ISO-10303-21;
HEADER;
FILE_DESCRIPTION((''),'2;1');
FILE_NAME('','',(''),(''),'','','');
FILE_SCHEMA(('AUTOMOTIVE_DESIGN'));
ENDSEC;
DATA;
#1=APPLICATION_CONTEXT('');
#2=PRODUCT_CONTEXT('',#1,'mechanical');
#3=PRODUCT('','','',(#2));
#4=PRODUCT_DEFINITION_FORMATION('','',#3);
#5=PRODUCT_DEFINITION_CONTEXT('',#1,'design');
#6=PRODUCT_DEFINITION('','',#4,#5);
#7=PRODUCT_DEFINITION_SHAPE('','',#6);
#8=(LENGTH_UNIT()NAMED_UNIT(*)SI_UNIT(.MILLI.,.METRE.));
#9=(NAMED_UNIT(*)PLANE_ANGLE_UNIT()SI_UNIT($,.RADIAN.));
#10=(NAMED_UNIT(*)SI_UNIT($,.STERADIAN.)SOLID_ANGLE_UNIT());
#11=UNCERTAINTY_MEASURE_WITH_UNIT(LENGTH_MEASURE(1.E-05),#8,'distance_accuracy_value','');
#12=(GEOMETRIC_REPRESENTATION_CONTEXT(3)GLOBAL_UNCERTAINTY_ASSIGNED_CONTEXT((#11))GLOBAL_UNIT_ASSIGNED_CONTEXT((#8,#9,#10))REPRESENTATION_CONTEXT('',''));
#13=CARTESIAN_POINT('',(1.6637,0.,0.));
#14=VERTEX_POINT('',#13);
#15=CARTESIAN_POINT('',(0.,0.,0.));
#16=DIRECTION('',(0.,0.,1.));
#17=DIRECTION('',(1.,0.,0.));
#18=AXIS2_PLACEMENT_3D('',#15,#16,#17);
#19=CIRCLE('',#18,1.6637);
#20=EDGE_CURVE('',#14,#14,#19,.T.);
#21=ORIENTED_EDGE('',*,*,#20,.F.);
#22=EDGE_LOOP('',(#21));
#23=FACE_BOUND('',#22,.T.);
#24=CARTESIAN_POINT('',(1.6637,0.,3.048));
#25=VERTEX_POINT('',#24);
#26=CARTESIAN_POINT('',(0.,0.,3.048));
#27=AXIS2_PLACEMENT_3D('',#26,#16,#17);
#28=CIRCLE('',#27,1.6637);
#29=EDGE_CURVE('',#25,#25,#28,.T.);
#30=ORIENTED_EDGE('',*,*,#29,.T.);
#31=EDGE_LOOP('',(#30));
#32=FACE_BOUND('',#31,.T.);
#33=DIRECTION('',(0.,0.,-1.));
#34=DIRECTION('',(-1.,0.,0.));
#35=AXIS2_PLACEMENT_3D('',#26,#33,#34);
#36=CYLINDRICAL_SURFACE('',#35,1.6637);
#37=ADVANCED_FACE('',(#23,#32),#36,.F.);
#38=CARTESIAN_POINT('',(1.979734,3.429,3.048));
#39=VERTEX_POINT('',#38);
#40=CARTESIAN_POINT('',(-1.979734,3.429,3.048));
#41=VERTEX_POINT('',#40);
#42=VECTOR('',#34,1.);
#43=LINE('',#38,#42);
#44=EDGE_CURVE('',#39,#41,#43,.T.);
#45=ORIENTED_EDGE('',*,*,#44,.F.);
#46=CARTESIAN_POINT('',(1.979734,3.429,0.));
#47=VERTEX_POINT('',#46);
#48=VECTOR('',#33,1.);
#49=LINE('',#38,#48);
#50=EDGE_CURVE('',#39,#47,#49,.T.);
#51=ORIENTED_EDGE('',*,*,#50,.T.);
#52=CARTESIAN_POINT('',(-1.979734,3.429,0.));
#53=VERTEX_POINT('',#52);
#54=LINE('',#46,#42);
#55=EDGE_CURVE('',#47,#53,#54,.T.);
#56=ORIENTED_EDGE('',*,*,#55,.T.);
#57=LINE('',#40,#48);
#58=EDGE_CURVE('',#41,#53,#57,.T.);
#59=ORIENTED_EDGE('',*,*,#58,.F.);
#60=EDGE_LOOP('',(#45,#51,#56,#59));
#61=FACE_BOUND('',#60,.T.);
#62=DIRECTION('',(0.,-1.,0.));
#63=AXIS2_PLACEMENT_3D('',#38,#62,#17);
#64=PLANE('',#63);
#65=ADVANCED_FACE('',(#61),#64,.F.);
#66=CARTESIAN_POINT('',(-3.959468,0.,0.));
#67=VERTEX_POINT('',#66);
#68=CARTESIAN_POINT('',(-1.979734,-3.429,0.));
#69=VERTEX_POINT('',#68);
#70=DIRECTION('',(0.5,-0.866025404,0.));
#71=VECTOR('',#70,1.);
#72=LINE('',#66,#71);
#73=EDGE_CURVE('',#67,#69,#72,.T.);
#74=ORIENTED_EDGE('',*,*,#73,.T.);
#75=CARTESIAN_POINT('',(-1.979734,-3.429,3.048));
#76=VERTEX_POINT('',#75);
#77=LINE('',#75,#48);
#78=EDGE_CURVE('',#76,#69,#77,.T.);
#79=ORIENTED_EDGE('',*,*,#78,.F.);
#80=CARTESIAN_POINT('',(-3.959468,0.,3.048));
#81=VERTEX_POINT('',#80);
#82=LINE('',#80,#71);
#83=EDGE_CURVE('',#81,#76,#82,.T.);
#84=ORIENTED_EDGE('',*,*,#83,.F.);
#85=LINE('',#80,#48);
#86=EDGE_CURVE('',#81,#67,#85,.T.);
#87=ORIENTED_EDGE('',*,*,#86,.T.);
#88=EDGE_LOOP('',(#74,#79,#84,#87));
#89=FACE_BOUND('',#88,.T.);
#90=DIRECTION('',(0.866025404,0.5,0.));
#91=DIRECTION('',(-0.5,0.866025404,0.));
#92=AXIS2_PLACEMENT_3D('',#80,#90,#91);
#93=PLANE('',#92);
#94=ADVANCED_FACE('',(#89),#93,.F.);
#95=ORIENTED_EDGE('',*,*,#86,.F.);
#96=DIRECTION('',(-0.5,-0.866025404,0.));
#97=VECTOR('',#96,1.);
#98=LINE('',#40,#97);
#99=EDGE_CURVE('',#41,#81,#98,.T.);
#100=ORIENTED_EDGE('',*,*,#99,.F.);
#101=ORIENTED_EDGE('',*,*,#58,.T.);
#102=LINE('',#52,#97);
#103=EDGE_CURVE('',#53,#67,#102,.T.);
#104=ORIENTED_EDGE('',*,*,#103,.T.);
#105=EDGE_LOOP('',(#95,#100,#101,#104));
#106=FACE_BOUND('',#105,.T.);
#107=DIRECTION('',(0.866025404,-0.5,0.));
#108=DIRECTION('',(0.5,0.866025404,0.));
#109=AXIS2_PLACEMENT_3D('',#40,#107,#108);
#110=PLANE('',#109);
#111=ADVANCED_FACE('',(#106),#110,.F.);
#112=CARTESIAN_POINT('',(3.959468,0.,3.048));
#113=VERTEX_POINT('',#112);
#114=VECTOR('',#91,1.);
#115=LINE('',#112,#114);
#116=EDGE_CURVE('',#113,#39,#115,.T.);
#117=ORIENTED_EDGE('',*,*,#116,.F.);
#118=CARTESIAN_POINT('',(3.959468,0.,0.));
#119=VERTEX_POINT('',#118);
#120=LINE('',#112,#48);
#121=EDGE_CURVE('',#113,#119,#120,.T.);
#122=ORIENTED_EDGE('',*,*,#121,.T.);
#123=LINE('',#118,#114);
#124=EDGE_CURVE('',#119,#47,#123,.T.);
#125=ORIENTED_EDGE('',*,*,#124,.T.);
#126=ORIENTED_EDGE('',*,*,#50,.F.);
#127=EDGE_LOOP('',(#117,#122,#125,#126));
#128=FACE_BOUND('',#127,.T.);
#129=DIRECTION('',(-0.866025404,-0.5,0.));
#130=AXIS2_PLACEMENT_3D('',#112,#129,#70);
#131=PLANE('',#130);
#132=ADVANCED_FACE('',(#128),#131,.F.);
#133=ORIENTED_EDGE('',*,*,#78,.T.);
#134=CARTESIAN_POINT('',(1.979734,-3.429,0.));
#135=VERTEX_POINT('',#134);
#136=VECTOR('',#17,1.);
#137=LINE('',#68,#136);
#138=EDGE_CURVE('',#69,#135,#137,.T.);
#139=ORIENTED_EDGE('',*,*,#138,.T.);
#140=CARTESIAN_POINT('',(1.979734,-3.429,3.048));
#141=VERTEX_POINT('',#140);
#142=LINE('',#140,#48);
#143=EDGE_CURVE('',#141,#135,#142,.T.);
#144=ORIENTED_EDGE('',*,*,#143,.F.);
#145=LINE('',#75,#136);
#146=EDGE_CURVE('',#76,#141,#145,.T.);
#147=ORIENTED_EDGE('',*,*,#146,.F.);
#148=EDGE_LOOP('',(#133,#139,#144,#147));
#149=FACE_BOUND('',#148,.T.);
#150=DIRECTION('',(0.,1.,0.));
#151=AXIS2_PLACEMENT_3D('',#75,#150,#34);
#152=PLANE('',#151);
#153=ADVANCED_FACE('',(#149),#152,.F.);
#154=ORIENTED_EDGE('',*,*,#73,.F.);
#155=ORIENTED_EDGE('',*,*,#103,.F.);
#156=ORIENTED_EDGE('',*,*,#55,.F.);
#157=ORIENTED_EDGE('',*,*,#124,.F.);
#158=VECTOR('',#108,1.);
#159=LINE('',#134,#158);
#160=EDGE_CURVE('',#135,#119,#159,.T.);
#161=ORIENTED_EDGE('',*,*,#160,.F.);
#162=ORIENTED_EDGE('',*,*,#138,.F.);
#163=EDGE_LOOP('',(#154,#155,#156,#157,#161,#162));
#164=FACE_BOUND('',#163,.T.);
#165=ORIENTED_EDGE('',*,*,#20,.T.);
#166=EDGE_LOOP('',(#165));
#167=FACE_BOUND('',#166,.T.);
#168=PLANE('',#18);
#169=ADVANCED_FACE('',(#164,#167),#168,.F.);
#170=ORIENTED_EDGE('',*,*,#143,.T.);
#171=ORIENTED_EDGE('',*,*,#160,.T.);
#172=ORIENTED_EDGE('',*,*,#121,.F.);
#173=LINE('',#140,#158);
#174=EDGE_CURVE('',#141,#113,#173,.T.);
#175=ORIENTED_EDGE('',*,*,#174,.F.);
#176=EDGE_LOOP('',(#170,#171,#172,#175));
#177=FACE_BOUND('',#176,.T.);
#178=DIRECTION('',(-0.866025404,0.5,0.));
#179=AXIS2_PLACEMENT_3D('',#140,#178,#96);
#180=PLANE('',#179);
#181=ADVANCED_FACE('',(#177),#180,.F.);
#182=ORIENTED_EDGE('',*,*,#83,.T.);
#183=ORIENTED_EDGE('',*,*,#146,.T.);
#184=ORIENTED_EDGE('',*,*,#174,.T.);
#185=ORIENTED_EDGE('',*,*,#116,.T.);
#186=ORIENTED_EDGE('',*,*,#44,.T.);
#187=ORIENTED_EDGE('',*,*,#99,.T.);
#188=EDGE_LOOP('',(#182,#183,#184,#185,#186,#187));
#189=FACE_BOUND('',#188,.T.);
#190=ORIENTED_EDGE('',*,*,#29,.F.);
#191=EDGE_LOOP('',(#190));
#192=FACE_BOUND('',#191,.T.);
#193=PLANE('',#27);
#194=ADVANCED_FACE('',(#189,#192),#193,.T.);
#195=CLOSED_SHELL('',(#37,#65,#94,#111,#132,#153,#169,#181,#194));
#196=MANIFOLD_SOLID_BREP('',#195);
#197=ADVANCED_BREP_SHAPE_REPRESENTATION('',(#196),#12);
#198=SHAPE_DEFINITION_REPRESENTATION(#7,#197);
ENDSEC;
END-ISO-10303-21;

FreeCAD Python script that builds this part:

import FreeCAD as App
import Part
import Sketcher

V = App.Vector
Q = App.Units.Quantity


def add_polygon(sketch, points):
    """Adds a closed chain of lines whose ends are joined by coincident constraints."""
    first, n = sketch.GeometryCount, len(points)
    for a, b in zip(points, points[1:] + points[:1]):
        sketch.addGeometry(Part.LineSegment(App.Vector(*a, 0), App.Vector(*b, 0)), False)
    for i in range(n):
        sketch.addConstraint(Sketcher.Constraint("Coincident", first + i, 2, first + (i + 1) % n, 1))

doc = App.newDocument("Part")
body = doc.addObject("PartDesign::Body", "Body")

sketch1 = body.newObject("Sketcher::SketchObject", "Sketch")
sketch1.AttachmentSupport = (doc.getObject("XY_Plane"), [""])
sketch1.MapMode = "FlatFace"
add_polygon(sketch1, [(4, 0), (2, 3.4), (-2, 3.4), (-4, 0), (-2, -3.4), (2, -3.4)])
sketch1.addGeometry(Part.Circle(V(0, 0, 0), V(0, 0, 1), 1.7), False)
sketch1.addConstraint([
    Sketcher.Constraint("Horizontal", 1),
    Sketcher.Constraint("Horizontal", 4),
    Sketcher.Constraint("Coincident", 6, 3, -1, 1),
    Sketcher.Constraint("Symmetric", 0, 2, 3, 2, -1, 1),
    Sketcher.Constraint("Symmetric", 2, 2, 5, 2, -1, 1),
    Sketcher.Constraint("PointOnObject", 2, 2, -1),
    Sketcher.Constraint("Parallel", 2, 5),
    Sketcher.Constraint("Vertical", 1, 2, 3, 2),
    Sketcher.Constraint("Diameter", 6, Q("0.131 in")),
    Sketcher.Constraint("Angle", 0, Q("120 deg")),
    Sketcher.Constraint("DistanceY", 3, 2, 1, 2, Q("0.27 in")),
    Sketcher.Constraint("DistanceX", 1, 2, 1, 1, Q("3.959468 mm")),
])
pad1 = body.newObject("PartDesign::Pad", "Pad")
pad1.Profile = sketch1
pad1.Length = Q("0.12 in")

doc.recompute()
